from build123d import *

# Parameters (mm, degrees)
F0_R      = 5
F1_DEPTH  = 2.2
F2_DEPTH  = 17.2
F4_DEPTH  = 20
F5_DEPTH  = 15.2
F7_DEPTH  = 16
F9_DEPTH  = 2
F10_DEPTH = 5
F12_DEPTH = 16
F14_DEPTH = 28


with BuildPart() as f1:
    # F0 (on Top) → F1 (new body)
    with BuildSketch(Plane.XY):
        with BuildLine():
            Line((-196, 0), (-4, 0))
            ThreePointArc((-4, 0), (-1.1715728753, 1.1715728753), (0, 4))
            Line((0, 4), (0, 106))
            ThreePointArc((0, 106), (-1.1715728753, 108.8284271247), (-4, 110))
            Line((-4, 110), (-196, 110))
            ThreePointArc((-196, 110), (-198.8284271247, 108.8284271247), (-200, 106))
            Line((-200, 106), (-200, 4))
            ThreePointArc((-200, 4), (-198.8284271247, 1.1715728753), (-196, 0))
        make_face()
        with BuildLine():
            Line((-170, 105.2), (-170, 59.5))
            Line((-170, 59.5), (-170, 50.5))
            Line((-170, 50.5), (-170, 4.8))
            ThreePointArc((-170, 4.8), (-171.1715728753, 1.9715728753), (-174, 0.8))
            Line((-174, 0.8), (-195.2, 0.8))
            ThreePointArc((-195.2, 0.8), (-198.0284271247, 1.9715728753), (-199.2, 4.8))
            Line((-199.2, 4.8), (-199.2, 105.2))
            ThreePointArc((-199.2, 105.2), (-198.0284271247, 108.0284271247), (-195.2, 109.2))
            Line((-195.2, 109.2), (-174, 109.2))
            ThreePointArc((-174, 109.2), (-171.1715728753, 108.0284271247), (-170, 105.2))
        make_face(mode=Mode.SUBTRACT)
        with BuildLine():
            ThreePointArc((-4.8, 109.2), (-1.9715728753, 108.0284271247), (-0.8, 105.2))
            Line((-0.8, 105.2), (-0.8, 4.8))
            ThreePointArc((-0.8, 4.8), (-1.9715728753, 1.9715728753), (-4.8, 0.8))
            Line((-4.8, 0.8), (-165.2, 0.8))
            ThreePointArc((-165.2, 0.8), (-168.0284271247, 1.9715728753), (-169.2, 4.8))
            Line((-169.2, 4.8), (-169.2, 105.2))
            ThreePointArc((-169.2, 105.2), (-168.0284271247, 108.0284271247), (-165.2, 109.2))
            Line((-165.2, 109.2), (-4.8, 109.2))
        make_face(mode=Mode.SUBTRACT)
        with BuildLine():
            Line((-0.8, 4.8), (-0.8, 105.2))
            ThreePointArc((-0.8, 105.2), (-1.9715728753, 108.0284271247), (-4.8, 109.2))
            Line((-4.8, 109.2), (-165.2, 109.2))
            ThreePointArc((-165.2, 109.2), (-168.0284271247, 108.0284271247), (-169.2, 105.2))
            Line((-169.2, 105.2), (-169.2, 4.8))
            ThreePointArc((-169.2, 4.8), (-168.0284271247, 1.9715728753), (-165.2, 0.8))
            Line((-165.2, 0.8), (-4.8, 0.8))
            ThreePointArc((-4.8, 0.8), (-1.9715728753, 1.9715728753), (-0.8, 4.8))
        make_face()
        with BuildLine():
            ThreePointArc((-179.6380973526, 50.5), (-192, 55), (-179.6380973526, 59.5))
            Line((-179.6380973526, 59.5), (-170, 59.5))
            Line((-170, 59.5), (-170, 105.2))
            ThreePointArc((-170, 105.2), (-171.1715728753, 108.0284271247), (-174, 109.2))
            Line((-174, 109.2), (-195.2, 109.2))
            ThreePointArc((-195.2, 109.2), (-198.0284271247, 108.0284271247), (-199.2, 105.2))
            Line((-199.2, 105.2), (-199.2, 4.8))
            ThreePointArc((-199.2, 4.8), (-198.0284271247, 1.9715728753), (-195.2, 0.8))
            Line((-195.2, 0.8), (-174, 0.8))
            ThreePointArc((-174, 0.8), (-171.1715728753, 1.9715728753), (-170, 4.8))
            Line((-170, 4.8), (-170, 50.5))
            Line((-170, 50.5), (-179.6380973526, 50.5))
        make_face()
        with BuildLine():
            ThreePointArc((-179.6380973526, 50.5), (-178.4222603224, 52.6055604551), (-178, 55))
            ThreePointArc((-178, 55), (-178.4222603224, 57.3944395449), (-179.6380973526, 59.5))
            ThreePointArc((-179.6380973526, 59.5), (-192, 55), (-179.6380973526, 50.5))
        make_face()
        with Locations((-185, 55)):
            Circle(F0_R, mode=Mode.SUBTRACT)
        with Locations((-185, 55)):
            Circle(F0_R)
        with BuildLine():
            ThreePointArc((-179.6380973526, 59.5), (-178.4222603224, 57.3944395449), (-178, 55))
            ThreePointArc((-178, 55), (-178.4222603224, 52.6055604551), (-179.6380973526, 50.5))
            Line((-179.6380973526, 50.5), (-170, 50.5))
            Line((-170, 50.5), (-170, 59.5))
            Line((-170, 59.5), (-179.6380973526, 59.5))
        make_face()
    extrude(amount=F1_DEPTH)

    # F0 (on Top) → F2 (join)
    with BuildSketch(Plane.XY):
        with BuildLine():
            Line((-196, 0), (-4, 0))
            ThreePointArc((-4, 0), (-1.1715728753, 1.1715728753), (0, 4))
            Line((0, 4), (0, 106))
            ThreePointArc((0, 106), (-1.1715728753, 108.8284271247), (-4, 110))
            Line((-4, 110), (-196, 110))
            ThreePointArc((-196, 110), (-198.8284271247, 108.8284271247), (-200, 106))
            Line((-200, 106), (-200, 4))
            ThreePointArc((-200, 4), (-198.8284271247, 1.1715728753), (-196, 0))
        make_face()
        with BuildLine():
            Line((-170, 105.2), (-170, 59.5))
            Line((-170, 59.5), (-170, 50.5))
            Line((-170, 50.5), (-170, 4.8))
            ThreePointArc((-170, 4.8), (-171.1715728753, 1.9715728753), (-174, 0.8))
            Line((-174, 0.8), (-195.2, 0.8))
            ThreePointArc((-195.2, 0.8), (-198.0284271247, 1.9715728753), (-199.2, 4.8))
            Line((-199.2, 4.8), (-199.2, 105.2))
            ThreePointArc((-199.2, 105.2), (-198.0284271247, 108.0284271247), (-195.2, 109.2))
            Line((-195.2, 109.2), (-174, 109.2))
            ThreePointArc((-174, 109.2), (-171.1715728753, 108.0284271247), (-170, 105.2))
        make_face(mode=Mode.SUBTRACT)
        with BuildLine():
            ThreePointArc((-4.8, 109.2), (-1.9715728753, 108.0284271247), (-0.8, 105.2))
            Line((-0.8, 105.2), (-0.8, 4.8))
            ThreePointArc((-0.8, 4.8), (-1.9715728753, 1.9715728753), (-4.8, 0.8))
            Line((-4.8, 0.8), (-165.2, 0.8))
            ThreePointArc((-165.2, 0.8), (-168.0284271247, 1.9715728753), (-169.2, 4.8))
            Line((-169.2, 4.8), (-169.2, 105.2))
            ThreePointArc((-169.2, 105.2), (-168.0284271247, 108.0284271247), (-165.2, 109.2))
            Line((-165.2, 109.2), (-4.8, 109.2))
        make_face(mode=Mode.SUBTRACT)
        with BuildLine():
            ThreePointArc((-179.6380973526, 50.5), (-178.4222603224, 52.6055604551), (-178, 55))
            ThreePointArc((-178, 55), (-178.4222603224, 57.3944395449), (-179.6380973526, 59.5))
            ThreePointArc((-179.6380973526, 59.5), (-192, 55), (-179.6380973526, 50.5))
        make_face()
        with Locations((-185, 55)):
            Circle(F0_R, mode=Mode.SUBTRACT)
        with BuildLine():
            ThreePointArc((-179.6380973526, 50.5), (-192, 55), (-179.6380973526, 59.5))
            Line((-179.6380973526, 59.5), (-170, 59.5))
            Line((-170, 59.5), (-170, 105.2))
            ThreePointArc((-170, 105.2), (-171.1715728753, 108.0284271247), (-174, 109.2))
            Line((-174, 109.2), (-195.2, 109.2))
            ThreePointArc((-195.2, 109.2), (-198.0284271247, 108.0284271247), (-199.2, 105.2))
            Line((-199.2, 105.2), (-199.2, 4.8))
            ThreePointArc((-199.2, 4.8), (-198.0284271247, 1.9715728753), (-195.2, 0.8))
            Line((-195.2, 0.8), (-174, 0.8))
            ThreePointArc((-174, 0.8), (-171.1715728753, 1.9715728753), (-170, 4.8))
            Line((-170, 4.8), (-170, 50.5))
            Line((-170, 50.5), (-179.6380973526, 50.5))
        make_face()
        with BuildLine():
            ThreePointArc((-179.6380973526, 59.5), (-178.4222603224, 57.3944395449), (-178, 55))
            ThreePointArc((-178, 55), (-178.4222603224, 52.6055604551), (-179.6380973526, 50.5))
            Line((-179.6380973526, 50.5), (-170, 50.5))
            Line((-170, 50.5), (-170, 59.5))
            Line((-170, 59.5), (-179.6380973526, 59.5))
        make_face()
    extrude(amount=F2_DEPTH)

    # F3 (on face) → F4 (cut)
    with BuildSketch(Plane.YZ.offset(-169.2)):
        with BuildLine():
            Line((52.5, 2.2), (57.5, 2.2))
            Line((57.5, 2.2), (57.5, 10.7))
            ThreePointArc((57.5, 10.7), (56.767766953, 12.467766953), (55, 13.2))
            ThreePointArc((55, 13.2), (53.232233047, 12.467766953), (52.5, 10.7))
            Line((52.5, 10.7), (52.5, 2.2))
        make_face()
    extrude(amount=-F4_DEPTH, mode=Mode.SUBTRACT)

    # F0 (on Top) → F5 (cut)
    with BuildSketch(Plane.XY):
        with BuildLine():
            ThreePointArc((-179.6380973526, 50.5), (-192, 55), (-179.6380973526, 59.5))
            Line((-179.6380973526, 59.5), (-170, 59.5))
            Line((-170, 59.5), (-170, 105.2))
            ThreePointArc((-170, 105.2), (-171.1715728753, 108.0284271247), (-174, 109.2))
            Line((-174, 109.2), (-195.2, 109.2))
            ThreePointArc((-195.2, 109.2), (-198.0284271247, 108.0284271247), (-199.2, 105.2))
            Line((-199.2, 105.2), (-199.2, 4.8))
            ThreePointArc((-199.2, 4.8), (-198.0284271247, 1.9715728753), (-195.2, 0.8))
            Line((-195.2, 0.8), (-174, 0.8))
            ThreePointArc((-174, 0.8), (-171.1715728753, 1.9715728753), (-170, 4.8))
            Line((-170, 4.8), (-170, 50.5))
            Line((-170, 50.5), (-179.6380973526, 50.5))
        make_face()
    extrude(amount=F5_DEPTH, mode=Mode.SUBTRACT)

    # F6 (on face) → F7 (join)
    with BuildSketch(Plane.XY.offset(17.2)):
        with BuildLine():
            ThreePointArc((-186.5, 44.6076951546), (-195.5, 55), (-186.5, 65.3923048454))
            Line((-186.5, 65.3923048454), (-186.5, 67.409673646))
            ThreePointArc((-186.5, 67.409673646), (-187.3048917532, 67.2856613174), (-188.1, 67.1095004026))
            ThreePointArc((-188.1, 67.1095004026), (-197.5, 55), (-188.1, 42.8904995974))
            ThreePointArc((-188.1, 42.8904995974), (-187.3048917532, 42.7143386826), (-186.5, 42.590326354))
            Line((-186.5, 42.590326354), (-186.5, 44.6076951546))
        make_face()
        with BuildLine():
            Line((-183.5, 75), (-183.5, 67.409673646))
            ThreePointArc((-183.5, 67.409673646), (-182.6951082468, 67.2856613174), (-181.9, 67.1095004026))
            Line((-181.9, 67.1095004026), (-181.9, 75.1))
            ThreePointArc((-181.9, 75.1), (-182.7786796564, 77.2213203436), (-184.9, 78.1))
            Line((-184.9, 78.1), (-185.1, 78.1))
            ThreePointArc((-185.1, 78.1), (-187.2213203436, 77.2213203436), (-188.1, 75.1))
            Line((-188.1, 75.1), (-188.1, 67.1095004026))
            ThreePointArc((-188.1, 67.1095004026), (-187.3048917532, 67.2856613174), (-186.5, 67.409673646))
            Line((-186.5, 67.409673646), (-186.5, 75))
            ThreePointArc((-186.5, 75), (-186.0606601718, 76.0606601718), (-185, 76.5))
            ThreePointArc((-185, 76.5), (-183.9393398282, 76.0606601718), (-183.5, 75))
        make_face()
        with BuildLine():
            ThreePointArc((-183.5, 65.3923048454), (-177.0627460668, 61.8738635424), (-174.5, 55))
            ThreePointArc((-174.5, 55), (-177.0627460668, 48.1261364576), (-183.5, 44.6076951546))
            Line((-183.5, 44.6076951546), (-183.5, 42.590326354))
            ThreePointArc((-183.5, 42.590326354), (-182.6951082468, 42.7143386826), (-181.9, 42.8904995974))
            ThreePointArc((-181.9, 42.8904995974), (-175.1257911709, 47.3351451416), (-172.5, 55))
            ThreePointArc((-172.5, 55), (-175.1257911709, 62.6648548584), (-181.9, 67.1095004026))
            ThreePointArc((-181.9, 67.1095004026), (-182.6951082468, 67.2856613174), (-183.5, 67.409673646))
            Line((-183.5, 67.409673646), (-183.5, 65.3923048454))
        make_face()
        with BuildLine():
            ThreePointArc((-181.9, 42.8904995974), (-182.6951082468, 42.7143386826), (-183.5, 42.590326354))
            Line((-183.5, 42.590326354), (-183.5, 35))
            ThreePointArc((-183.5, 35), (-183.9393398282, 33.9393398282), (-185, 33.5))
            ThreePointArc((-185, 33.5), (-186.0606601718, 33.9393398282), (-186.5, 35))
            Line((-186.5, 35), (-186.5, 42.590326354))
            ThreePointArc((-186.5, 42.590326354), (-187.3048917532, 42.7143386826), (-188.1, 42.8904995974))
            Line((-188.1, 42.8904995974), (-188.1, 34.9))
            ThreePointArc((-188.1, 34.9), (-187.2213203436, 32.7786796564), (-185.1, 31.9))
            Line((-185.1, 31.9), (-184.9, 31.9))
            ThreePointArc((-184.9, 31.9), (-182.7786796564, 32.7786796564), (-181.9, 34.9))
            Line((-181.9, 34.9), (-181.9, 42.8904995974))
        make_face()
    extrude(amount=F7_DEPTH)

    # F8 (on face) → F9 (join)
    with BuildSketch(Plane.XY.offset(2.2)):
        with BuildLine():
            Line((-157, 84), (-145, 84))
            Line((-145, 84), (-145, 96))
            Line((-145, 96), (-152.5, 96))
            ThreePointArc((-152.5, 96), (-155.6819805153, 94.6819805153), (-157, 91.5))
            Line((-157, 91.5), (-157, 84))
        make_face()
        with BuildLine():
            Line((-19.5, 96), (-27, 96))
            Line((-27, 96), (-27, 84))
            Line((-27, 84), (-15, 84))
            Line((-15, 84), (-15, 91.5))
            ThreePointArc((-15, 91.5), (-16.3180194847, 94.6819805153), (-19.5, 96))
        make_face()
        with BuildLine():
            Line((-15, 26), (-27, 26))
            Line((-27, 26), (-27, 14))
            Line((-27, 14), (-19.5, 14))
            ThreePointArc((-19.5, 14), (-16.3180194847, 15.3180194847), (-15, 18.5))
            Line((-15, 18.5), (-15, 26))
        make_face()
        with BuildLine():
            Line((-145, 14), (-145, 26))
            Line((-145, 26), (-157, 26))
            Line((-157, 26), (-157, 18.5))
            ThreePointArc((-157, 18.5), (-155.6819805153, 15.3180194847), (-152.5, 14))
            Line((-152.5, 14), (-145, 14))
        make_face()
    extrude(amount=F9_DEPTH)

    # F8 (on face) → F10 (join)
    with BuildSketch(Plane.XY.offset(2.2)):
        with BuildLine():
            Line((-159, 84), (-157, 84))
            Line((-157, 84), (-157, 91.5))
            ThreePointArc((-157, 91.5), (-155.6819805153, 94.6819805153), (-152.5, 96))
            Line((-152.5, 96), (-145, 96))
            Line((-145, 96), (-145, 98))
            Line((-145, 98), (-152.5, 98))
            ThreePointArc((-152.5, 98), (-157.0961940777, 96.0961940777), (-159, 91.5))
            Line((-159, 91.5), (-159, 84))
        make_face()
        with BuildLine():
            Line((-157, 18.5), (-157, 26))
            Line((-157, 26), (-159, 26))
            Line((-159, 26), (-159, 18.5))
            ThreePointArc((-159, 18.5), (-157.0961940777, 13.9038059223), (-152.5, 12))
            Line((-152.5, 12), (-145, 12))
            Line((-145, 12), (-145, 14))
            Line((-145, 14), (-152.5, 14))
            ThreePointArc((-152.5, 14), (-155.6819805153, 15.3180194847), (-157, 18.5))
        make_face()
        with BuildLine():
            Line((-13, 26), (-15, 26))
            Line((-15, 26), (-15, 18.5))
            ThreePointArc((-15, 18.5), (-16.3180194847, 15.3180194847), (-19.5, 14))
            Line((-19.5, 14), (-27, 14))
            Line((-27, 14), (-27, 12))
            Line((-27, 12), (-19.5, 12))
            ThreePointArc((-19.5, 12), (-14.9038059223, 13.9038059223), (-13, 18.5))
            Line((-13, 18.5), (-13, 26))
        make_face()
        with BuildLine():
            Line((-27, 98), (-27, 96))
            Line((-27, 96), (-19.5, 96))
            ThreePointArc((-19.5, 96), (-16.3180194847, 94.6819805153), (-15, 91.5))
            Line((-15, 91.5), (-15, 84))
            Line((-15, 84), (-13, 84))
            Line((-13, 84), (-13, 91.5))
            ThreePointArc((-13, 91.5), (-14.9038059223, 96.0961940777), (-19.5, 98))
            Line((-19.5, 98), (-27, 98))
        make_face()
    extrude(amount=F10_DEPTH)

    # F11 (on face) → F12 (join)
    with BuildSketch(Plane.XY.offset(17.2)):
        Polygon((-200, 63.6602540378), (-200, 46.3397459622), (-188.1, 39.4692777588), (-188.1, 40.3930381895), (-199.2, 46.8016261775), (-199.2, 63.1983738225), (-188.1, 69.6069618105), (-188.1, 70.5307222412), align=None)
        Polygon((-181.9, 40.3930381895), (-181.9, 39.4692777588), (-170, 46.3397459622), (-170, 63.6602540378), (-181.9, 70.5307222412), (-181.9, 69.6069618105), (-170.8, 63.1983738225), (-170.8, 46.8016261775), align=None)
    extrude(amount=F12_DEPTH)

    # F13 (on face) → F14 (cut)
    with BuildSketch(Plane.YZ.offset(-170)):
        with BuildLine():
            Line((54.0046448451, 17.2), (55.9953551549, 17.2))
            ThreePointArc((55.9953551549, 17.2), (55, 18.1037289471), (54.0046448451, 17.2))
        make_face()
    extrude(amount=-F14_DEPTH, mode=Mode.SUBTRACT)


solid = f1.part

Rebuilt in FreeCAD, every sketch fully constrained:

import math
import FreeCAD as App
import Part
import Sketcher
Q = App.Units.Quantity

doc = App.newDocument("Part")
params = doc.addObject("Spreadsheet::Sheet", "Params")
for row, (alias, value) in enumerate([
    ("sketch1_radius", "4 mm"),
    ("sketch1_width", "192 mm"),
    ("sketch1_height", "102 mm"),
    ("pad1_length", "2.2 mm"),
    ("sketch2_diameter", "10 mm"),
    ("sketch2_radius", "4 mm"),
    ("sketch2_width", "192 mm"),
    ("sketch2_height", "102 mm"),
    ("sketch2_width2", "160.4 mm"),
    ("pad2_length", "17.2 mm"),
    ("sketch3_radius", "2.5 mm"),
    ("sketch3_height", "8.5 mm"),
    ("pocket1_length", "20 mm"),
    ("sketch4_radius", "7 mm"),
    ("sketch4_radius2", "4 mm"),
    ("sketch4_width", "21.2 mm"),
    ("sketch4_height", "45.7 mm"),
    ("sketch4_height2", "100.4 mm"),
    ("pocket2_length", "15.2 mm"),
    ("sketch5_radius", "3 mm"),
    ("sketch5_radius2", "12.5 mm"),
    ("sketch5_radius3", "10.5 mm"),
    ("sketch5_radius4", "1.5 mm"),
    ("sketch5_width", "0.2 mm"),
    ("pad3_length", "16 mm"),
    ("sketch6_radius", "4.5 mm"),
    ("sketch6_width", "12 mm"),
    ("pad4_length", "2 mm"),
    ("sketch7_radius", "4.5 mm"),
    ("sketch7_radius2", "6.5 mm"),
    ("sketch7_width", "7.5 mm"),
    ("pad5_length", "5 mm"),
    ("pad6_length", "16 mm"),
    ("sketch9_radius", "1 mm"),
    ("pocket3_length", "28 mm"),
], start=1):
    params.set(f"A{row}", alias)
    params.set(f"B{row}", "=" + value)
    params.setAlias(f"B{row}", alias)

body = doc.addObject("PartDesign::Body", "Body")

# Sketch on XY plane
sketch1 = doc.addObject("Sketcher::SketchObject", "Sketch")
body.addObject(sketch1)
sketch1.AttachmentSupport = (doc.XY_Plane, [""])
sketch1.MapMode = "FlatFace"
sketch1.addGeometry([
    Part.LineSegment(App.Vector(-196, 0, 0), App.Vector(-4, 0, 0)),  # 0
    Part.ArcOfCircle(Part.Circle(App.Vector(-4, 4, 0), App.Vector(0, 0, 1), 4), math.radians(-90), math.radians(0)),  # 1
    Part.LineSegment(App.Vector(0, 4, 0), App.Vector(0, 106, 0)),  # 2
    Part.ArcOfCircle(Part.Circle(App.Vector(-4, 106, 0), App.Vector(0, 0, 1), 4), math.radians(0), math.radians(90)),  # 3
    Part.LineSegment(App.Vector(-4, 110, 0), App.Vector(-196, 110, 0)),  # 4
    Part.ArcOfCircle(Part.Circle(App.Vector(-196, 106, 0), App.Vector(0, 0, 1), 4), math.radians(90), math.radians(180)),  # 5
    Part.LineSegment(App.Vector(-200, 106, 0), App.Vector(-200, 4, 0)),  # 6
    Part.ArcOfCircle(Part.Circle(App.Vector(-196, 4, 0), App.Vector(0, 0, 1), 4), math.radians(180), math.radians(270)),  # 7
], False)
sketch1.addConstraint([
    Sketcher.Constraint("Tangent", 0, 2, 1, 1),
    Sketcher.Constraint("Tangent", 1, 2, 2, 1),
    Sketcher.Constraint("Tangent", 2, 2, 3, 1),
    Sketcher.Constraint("Tangent", 3, 2, 4, 1),
    Sketcher.Constraint("Tangent", 4, 2, 5, 1),
    Sketcher.Constraint("Tangent", 5, 2, 6, 1),
    Sketcher.Constraint("Tangent", 6, 2, 7, 1),
    Sketcher.Constraint("Tangent", 7, 2, 0, 1),
    Sketcher.Constraint("Horizontal", 0),
    Sketcher.Constraint("Vertical", 2),
    Sketcher.Constraint("Horizontal", 4),
    Sketcher.Constraint("Vertical", 6),
    Sketcher.Constraint("Equal", 1, 3),
    Sketcher.Constraint("Equal", 3, 5),
    Sketcher.Constraint("Equal", 5, 7),
    Sketcher.Constraint("PointOnObject", 0, 2, -1),
    Sketcher.Constraint("PointOnObject", 1, 2, -2),
    Sketcher.Constraint("Radius", 1, 4.0),
    Sketcher.Constraint("DistanceX", 0, 1, 0, 2, 192.0),
    Sketcher.Constraint("DistanceY", 2, 1, 2, 2, 102.0),
])
sketch1.setExpression("Constraints[17]", "Params.sketch1_radius")
sketch1.setExpression("Constraints[18]", "Params.sketch1_width")
sketch1.setExpression("Constraints[19]", "Params.sketch1_height")
pad1 = doc.addObject("PartDesign::Pad", "Pad")
body.addObject(pad1)
pad1.Profile = sketch1
pad1.setExpression("Length", "Params.pad1_length")

# Sketch on XY plane
sketch2 = doc.addObject("Sketcher::SketchObject", "Sketch001")
body.addObject(sketch2)
sketch2.AttachmentSupport = (doc.XY_Plane, [""])
sketch2.MapMode = "FlatFace"
sketch2.addGeometry([
    Part.LineSegment(App.Vector(-196, 0, 0), App.Vector(-4, 0, 0)),  # 0
    Part.ArcOfCircle(Part.Circle(App.Vector(-4, 4, 0), App.Vector(0, 0, 1), 4), math.radians(-90), math.radians(0)),  # 1
    Part.LineSegment(App.Vector(0, 4, 0), App.Vector(0, 106, 0)),  # 2
    Part.ArcOfCircle(Part.Circle(App.Vector(-4, 106, 0), App.Vector(0, 0, 1), 4), math.radians(0), math.radians(90)),  # 3
    Part.LineSegment(App.Vector(-4, 110, 0), App.Vector(-196, 110, 0)),  # 4
    Part.ArcOfCircle(Part.Circle(App.Vector(-196, 106, 0), App.Vector(0, 0, 1), 4), math.radians(90), math.radians(180)),  # 5
    Part.LineSegment(App.Vector(-200, 106, 0), App.Vector(-200, 4, 0)),  # 6
    Part.ArcOfCircle(Part.Circle(App.Vector(-196, 4, 0), App.Vector(0, 0, 1), 4), math.radians(180), math.radians(270)),  # 7
    Part.LineSegment(App.Vector(-165.2, 109.2, 0), App.Vector(-4.8, 109.2, 0)),  # 8
    Part.ArcOfCircle(Part.Circle(App.Vector(-4.8, 105.2, 0), App.Vector(0, 0, 1), 4), math.radians(0), math.radians(90)),  # 9
    Part.LineSegment(App.Vector(-0.8, 105.2, 0), App.Vector(-0.8, 4.8, 0)),  # 10
    Part.ArcOfCircle(Part.Circle(App.Vector(-4.8, 4.8, 0), App.Vector(0, 0, 1), 4), math.radians(-90), math.radians(0)),  # 11
    Part.LineSegment(App.Vector(-4.8, 0.8, 0), App.Vector(-165.2, 0.8, 0)),  # 12
    Part.ArcOfCircle(Part.Circle(App.Vector(-165.2, 4.8, 0), App.Vector(0, 0, 1), 4), math.radians(180), math.radians(270)),  # 13
    Part.LineSegment(App.Vector(-169.2, 4.8, 0), App.Vector(-169.2, 105.2, 0)),  # 14
    Part.ArcOfCircle(Part.Circle(App.Vector(-165.2, 105.2, 0), App.Vector(0, 0, 1), 4), math.radians(90), math.radians(180)),  # 15
    Part.Circle(App.Vector(-185, 55, 0), App.Vector(0, 0, 1), 5),  # 16
], False)
sketch2.addConstraint([
    Sketcher.Constraint("Tangent", 0, 2, 1, 1),
    Sketcher.Constraint("Tangent", 1, 2, 2, 1),
    Sketcher.Constraint("Tangent", 2, 2, 3, 1),
    Sketcher.Constraint("Tangent", 3, 2, 4, 1),
    Sketcher.Constraint("Tangent", 4, 2, 5, 1),
    Sketcher.Constraint("Tangent", 5, 2, 6, 1),
    Sketcher.Constraint("Tangent", 6, 2, 7, 1),
    Sketcher.Constraint("Tangent", 7, 2, 0, 1),
    Sketcher.Constraint("Tangent", 8, 2, 9, 2),
    Sketcher.Constraint("Tangent", 9, 1, 10, 1),
    Sketcher.Constraint("Tangent", 10, 2, 11, 2),
    Sketcher.Constraint("Tangent", 11, 1, 12, 1),
    Sketcher.Constraint("Tangent", 12, 2, 13, 2),
    Sketcher.Constraint("Tangent", 13, 1, 14, 1),
    Sketcher.Constraint("Tangent", 14, 2, 15, 2),
    Sketcher.Constraint("Tangent", 15, 1, 8, 1),
    Sketcher.Constraint("Horizontal", 0),
    Sketcher.Constraint("Vertical", 2),
    Sketcher.Constraint("Horizontal", 4),
    Sketcher.Constraint("Vertical", 6),
    Sketcher.Constraint("Horizontal", 8),
    Sketcher.Constraint("Vertical", 10),
    Sketcher.Constraint("Horizontal", 12),
    Sketcher.Constraint("Vertical", 14),
    Sketcher.Constraint("Equal", 1, 3),
    Sketcher.Constraint("Equal", 3, 5),
    Sketcher.Constraint("Equal", 5, 7),
    Sketcher.Constraint("Equal", 7, 9),
    Sketcher.Constraint("Equal", 9, 11),
    Sketcher.Constraint("Equal", 11, 13),
    Sketcher.Constraint("Equal", 13, 15),
    Sketcher.Constraint("PointOnObject", 0, 2, -1),
    Sketcher.Constraint("PointOnObject", 1, 2, -2),
    Sketcher.Constraint("Diameter", 16, 10.0),
    Sketcher.Constraint("Radius", 1, 4.0),
    Sketcher.Constraint("DistanceX", 0, 1, 0, 2, 192.0),
    Sketcher.Constraint("DistanceY", 2, 1, 2, 2, 102.0),
    Sketcher.Constraint("DistanceX", 8, 1, 8, 2, 160.4),
    Sketcher.Constraint("DistanceY", 10, 2, 10, 1, 100.4),
    Sketcher.Constraint("DistanceX", 16, 3, -1, 1, 185.0),
    Sketcher.Constraint("DistanceY", -1, 1, 16, 3, 55.0),
    Sketcher.Constraint("DistanceX", 9, 3, -1, 1, 4.8),
    Sketcher.Constraint("DistanceY", -1, 1, 9, 3, 105.2),
])
sketch2.setExpression("Constraints[33]", "Params.sketch2_diameter")
sketch2.setExpression("Constraints[34]", "Params.sketch2_radius")
sketch2.setExpression("Constraints[35]", "Params.sketch2_width")
sketch2.setExpression("Constraints[36]", "Params.sketch2_height")
sketch2.setExpression("Constraints[37]", "Params.sketch2_width2")
pad2 = doc.addObject("PartDesign::Pad", "Pad001")
body.addObject(pad2)
pad2.Profile = sketch2
pad2.setExpression("Length", "Params.pad2_length")

# Sketch on YZ plane
sketch3 = doc.addObject("Sketcher::SketchObject", "Sketch002")
body.addObject(sketch3)
sketch3.AttachmentSupport = (doc.YZ_Plane, [""])
sketch3.MapMode = "FlatFace"
sketch3.AttachmentOffset = App.Placement(App.Vector(0, 0, -169.2), App.Rotation())
sketch3.addGeometry([
    Part.LineSegment(App.Vector(52.5, 2.2, 0), App.Vector(57.5, 2.2, 0)),  # 0
    Part.LineSegment(App.Vector(57.5, 2.2, 0), App.Vector(57.5, 10.7, 0)),  # 1
    Part.ArcOfCircle(Part.Circle(App.Vector(55, 10.7, 0), App.Vector(0, 0, 1), 2.5), math.radians(0), math.radians(90)),  # 2
    Part.ArcOfCircle(Part.Circle(App.Vector(55, 10.7, 0), App.Vector(0, 0, 1), 2.5), math.radians(90), math.radians(180)),  # 3
    Part.LineSegment(App.Vector(52.5, 10.7, 0), App.Vector(52.5, 2.2, 0)),  # 4
], False)
sketch3.addConstraint([
    Sketcher.Constraint("Coincident", 0, 2, 1, 1),
    Sketcher.Constraint("Tangent", 1, 2, 2, 1),
    Sketcher.Constraint("Tangent", 2, 2, 3, 1),
    Sketcher.Constraint("Tangent", 3, 2, 4, 1),
    Sketcher.Constraint("Coincident", 4, 2, 0, 1),
    Sketcher.Constraint("Horizontal", 0),
    Sketcher.Constraint("Vertical", 1),
    Sketcher.Constraint("Vertical", 4),
    Sketcher.Constraint("Equal", 2, 3),
    Sketcher.Constraint("Vertical", 3, 3, 2, 2),
    Sketcher.Constraint("Radius", 2, 2.5),
    Sketcher.Constraint("DistanceY", 1, 1, 1, 2, 8.5),
    Sketcher.Constraint("DistanceX", -1, 1, 2, 3, 55.0),
    Sketcher.Constraint("DistanceY", -1, 1, 2, 3, 10.7),
])
sketch3.setExpression("Constraints[10]", "Params.sketch3_radius")
sketch3.setExpression("Constraints[11]", "Params.sketch3_height")
pocket1 = doc.addObject("PartDesign::Pocket", "Pocket")
body.addObject(pocket1)
pocket1.Profile = sketch3
pocket1.setExpression("Length", "Params.pocket1_length")

# Sketch on XY plane
sketch4 = doc.addObject("Sketcher::SketchObject", "Sketch003")
body.addObject(sketch4)
sketch4.AttachmentSupport = (doc.XY_Plane, [""])
sketch4.MapMode = "FlatFace"
sketch4.addGeometry([
    Part.ArcOfCircle(Part.Circle(App.Vector(-185, 55, 0), App.Vector(0, 0, 1), 7), math.radians(40.005201), math.radians(319.994799)),  # 0
    Part.LineSegment(App.Vector(-179.638097, 59.5, 0), App.Vector(-170, 59.5, 0)),  # 1
    Part.LineSegment(App.Vector(-170, 59.5, 0), App.Vector(-170, 105.2, 0)),  # 2
    Part.ArcOfCircle(Part.Circle(App.Vector(-174, 105.2, 0), App.Vector(0, 0, 1), 4), math.radians(0), math.radians(90)),  # 3
    Part.LineSegment(App.Vector(-174, 109.2, 0), App.Vector(-195.2, 109.2, 0)),  # 4
    Part.ArcOfCircle(Part.Circle(App.Vector(-195.2, 105.2, 0), App.Vector(0, 0, 1), 4), math.radians(90), math.radians(180)),  # 5
    Part.LineSegment(App.Vector(-199.2, 105.2, 0), App.Vector(-199.2, 4.8, 0)),  # 6
    Part.ArcOfCircle(Part.Circle(App.Vector(-195.2, 4.8, 0), App.Vector(0, 0, 1), 4), math.radians(180), math.radians(270)),  # 7
    Part.LineSegment(App.Vector(-195.2, 0.8, 0), App.Vector(-174, 0.8, 0)),  # 8
    Part.ArcOfCircle(Part.Circle(App.Vector(-174, 4.8, 0), App.Vector(0, 0, 1), 4), math.radians(-90), math.radians(0)),  # 9
    Part.LineSegment(App.Vector(-170, 4.8, 0), App.Vector(-170, 50.5, 0)),  # 10
    Part.LineSegment(App.Vector(-170, 50.5, 0), App.Vector(-179.638097, 50.5, 0)),  # 11
], False)
sketch4.addConstraint([
    Sketcher.Constraint("Coincident", 0, 1, 1, 1),
    Sketcher.Constraint("Coincident", 1, 2, 2, 1),
    Sketcher.Constraint("Tangent", 2, 2, 3, 1),
    Sketcher.Constraint("Tangent", 3, 2, 4, 1),
    Sketcher.Constraint("Tangent", 4, 2, 5, 1),
    Sketcher.Constraint("Tangent", 5, 2, 6, 1),
    Sketcher.Constraint("Tangent", 6, 2, 7, 1),
    Sketcher.Constraint("Tangent", 7, 2, 8, 1),
    Sketcher.Constraint("Tangent", 8, 2, 9, 1),
    Sketcher.Constraint("Tangent", 9, 2, 10, 1),
    Sketcher.Constraint("Coincident", 10, 2, 11, 1),
    Sketcher.Constraint("Coincident", 11, 2, 0, 2),
    Sketcher.Constraint("Horizontal", 1),
    Sketcher.Constraint("Vertical", 2),
    Sketcher.Constraint("Horizontal", 4),
    Sketcher.Constraint("Vertical", 6),
    Sketcher.Constraint("Horizontal", 8),
    Sketcher.Constraint("Vertical", 10),
    Sketcher.Constraint("Horizontal", 11),
    Sketcher.Constraint("Equal", 3, 5),
    Sketcher.Constraint("Equal", 5, 7),
    Sketcher.Constraint("Equal", 7, 9),
    Sketcher.Constraint("Vertical", 3, 3, 9, 3),
    Sketcher.Constraint("Vertical", 0, 1, 11, 2),
    Sketcher.Constraint("Equal", 2, 10),
    Sketcher.Constraint("Radius", 0, 7.0),
    Sketcher.Constraint("Radius", 3, 4.0),
    Sketcher.Constraint("DistanceX", 4, 2, 4, 1, 21.2),
    Sketcher.Constraint("DistanceY", 2, 1, 2, 2, 45.7),
    Sketcher.Constraint("DistanceY", 6, 2, 6, 1, 100.4),
    Sketcher.Constraint("DistanceX", 0, 3, -1, 1, 185.0),
    Sketcher.Constraint("DistanceY", -1, 1, 0, 3, 55.0),
    Sketcher.Constraint("DistanceX", 3, 3, -1, 1, 174.0),
])
sketch4.setExpression("Constraints[25]", "Params.sketch4_radius")
sketch4.setExpression("Constraints[26]", "Params.sketch4_radius2")
sketch4.setExpression("Constraints[27]", "Params.sketch4_width")
sketch4.setExpression("Constraints[28]", "Params.sketch4_height")
sketch4.setExpression("Constraints[29]", "Params.sketch4_height2")
pocket2 = doc.addObject("PartDesign::Pocket", "Pocket001")
body.addObject(pocket2)
pocket2.Profile = sketch4
pocket2.setExpression("Length", "Params.pocket2_length")
pocket2.Reversed = True

# Sketch on XY plane
sketch5 = doc.addObject("Sketcher::SketchObject", "Sketch004")
body.addObject(sketch5)
sketch5.AttachmentSupport = (doc.XY_Plane, [""])
sketch5.MapMode = "FlatFace"
sketch5.AttachmentOffset = App.Placement(App.Vector(0, 0, 17.2), App.Rotation())
sketch5.addGeometry([
    Part.ArcOfCircle(Part.Circle(App.Vector(-185, 55, 0), App.Vector(0, 0, 1), 12.5), math.radians(-75.640806), math.radians(0)),  # 0
    Part.ArcOfCircle(Part.Circle(App.Vector(-185, 55, 0), App.Vector(0, 0, 1), 12.5), math.radians(0), math.radians(75.640806)),  # 1
    Part.LineSegment(App.Vector(-181.9, 67.1095, 0), App.Vector(-181.9, 75.1, 0)),  # 2
    Part.ArcOfCircle(Part.Circle(App.Vector(-184.9, 75.1, 0), App.Vector(0, 0, 1), 3), math.radians(0), math.radians(90)),  # 3
    Part.LineSegment(App.Vector(-184.9, 78.1, 0), App.Vector(-185.1, 78.1, 0)),  # 4
    Part.ArcOfCircle(Part.Circle(App.Vector(-185.1, 75.1, 0), App.Vector(0, 0, 1), 3), math.radians(90), math.radians(180)),  # 5
    Part.LineSegment(App.Vector(-188.1, 75.1, 0), App.Vector(-188.1, 67.1095, 0)),  # 6
    Part.ArcOfCircle(Part.Circle(App.Vector(-185, 55, 0), App.Vector(0, 0, 1), 12.5), math.radians(104.359194), math.radians(255.640806)),  # 7
    Part.LineSegment(App.Vector(-188.1, 42.8905, 0), App.Vector(-188.1, 34.9, 0)),  # 8
    Part.ArcOfCircle(Part.Circle(App.Vector(-185.1, 34.9, 0), App.Vector(0, 0, 1), 3), math.radians(180), math.radians(270)),  # 9
    Part.LineSegment(App.Vector(-185.1, 31.9, 0), App.Vector(-184.9, 31.9, 0)),  # 10
    Part.ArcOfCircle(Part.Circle(App.Vector(-184.9, 34.9, 0), App.Vector(0, 0, 1), 3), math.radians(-90), math.radians(0)),  # 11
    Part.LineSegment(App.Vector(-181.9, 34.9, 0), App.Vector(-181.9, 42.8905, 0)),  # 12
    Part.ArcOfCircle(Part.Circle(App.Vector(-185, 55, 0), App.Vector(0, 0, 1), 10.5), math.radians(98.213211), math.radians(261.786789)),  # 13
    Part.LineSegment(App.Vector(-186.5, 65.392305, 0), App.Vector(-186.5, 75, 0)),  # 14
    Part.ArcOfCircle(Part.Circle(App.Vector(-185, 75, 0), App.Vector(0, 0, 1), 1.5), math.radians(90), math.radians(180)),  # 15
    Part.ArcOfCircle(Part.Circle(App.Vector(-185, 75, 0), App.Vector(0, 0, 1), 1.5), math.radians(0), math.radians(90)),  # 16
    Part.LineSegment(App.Vector(-183.5, 75, 0), App.Vector(-183.5, 65.392305, 0)),  # 17
    Part.ArcOfCircle(Part.Circle(App.Vector(-185, 55, 0), App.Vector(0, 0, 1), 10.5), math.radians(0), math.radians(81.786789)),  # 18
    Part.ArcOfCircle(Part.Circle(App.Vector(-185, 55, 0), App.Vector(0, 0, 1), 10.5), math.radians(-81.786789), math.radians(0)),  # 19
    Part.LineSegment(App.Vector(-183.5, 44.607695, 0), App.Vector(-183.5, 35, 0)),  # 20
    Part.ArcOfCircle(Part.Circle(App.Vector(-185, 35, 0), App.Vector(0, 0, 1), 1.5), math.radians(-90), math.radians(0)),  # 21
    Part.ArcOfCircle(Part.Circle(App.Vector(-185, 35, 0), App.Vector(0, 0, 1), 1.5), math.radians(180), math.radians(270)),  # 22
    Part.LineSegment(App.Vector(-186.5, 35, 0), App.Vector(-186.5, 44.607695, 0)),  # 23
], False)
sketch5.addConstraint([
    Sketcher.Constraint("Tangent", 0, 2, 1, 1),
    Sketcher.Constraint("Coincident", 1, 2, 2, 1),
    Sketcher.Constraint("Tangent", 2, 2, 3, 1),
    Sketcher.Constraint("Tangent", 3, 2, 4, 1),
    Sketcher.Constraint("Tangent", 4, 2, 5, 1),
    Sketcher.Constraint("Tangent", 5, 2, 6, 1),
    Sketcher.Constraint("Coincident", 6, 2, 7, 1),
    Sketcher.Constraint("Coincident", 7, 2, 8, 1),
    Sketcher.Constraint("Tangent", 8, 2, 9, 1),
    Sketcher.Constraint("Tangent", 9, 2, 10, 1),
    Sketcher.Constraint("Tangent", 10, 2, 11, 1),
    Sketcher.Constraint("Tangent", 11, 2, 12, 1),
    Sketcher.Constraint("Coincident", 12, 2, 0, 1),
    Sketcher.Constraint("Coincident", 13, 1, 14, 1),
    Sketcher.Constraint("Tangent", 14, 2, 15, 2),
    Sketcher.Constraint("Tangent", 15, 1, 16, 2),
    Sketcher.Constraint("Tangent", 16, 1, 17, 1),
    Sketcher.Constraint("Coincident", 17, 2, 18, 2),
    Sketcher.Constraint("Tangent", 18, 1, 19, 2),
    Sketcher.Constraint("Coincident", 19, 1, 20, 1),
    Sketcher.Constraint("Tangent", 20, 2, 21, 2),
    Sketcher.Constraint("Tangent", 21, 1, 22, 2),
    Sketcher.Constraint("Tangent", 22, 1, 23, 1),
    Sketcher.Constraint("Coincident", 23, 2, 13, 2),
    Sketcher.Constraint("Vertical", 2),
    Sketcher.Constraint("Horizontal", 4),
    Sketcher.Constraint("Vertical", 6),
    Sketcher.Constraint("Vertical", 8),
    Sketcher.Constraint("Horizontal", 10),
    Sketcher.Constraint("Vertical", 12),
    Sketcher.Constraint("Vertical", 14),
    Sketcher.Constraint("Vertical", 17),
    Sketcher.Constraint("Vertical", 20),
    Sketcher.Constraint("Vertical", 23),
    Sketcher.Constraint("Coincident", 7, 3, 0, 3),
    Sketcher.Constraint("Coincident", 13, 3, 0, 3),
    Sketcher.Constraint("Coincident", 18, 3, 0, 3),
    Sketcher.Constraint("Equal", 0, 1),
    Sketcher.Constraint("Equal", 3, 5),
    Sketcher.Constraint("Equal", 1, 7),
    Sketcher.Constraint("Equal", 5, 9),
    Sketcher.Constraint("Equal", 9, 11),
    Sketcher.Constraint("Equal", 15, 16),
    Sketcher.Constraint("Equal", 13, 18),
    Sketcher.Constraint("Equal", 18, 19),
    Sketcher.Constraint("Equal", 16, 21),
    Sketcher.Constraint("Equal", 21, 22),
    Sketcher.Constraint("Horizontal", 19, 3, 0, 2),
    Sketcher.Constraint("Horizontal", 1, 2, 6, 2),
    Sketcher.Constraint("Horizontal", 7, 2, 12, 2),
    Sketcher.Constraint("Horizontal", 13, 1, 17, 2),
    Sketcher.Constraint("Horizontal", 0, 2, 18, 1),
    Sketcher.Constraint("Horizontal", 19, 1, 23, 2),
    Sketcher.Constraint("Vertical", 5, 3, 9, 3),
    Sketcher.Constraint("Vertical", 22, 3, 15, 1),
    Sketcher.Constraint("Vertical", 15, 1, 21, 1),
    Sketcher.Constraint("Equal", 6, 8),
    Sketcher.Constraint("Equal", 17, 20),
    Sketcher.Constraint("Radius", 3, 3.0),
    Sketcher.Constraint("Radius", 0, 12.5),
    Sketcher.Constraint("Radius", 13, 10.5),
    Sketcher.Constraint("Radius", 15, 1.5),
    Sketcher.Constraint("DistanceX", 4, 2, 4, 1, 0.2),
    Sketcher.Constraint("DistanceX", 0, 3, -1, 1, 185.0),
    Sketcher.Constraint("DistanceY", -1, 1, 0, 3, 55.0),
    Sketcher.Constraint("DistanceY", -1, 1, 15, 3, 75.0),
    Sketcher.Constraint("DistanceY", -1, 1, 3, 3, 75.1),
])
sketch5.setExpression("Constraints[58]", "Params.sketch5_radius")
sketch5.setExpression("Constraints[59]", "Params.sketch5_radius2")
sketch5.setExpression("Constraints[60]", "Params.sketch5_radius3")
sketch5.setExpression("Constraints[61]", "Params.sketch5_radius4")
sketch5.setExpression("Constraints[62]", "Params.sketch5_width")
pad3 = doc.addObject("PartDesign::Pad", "Pad002")
body.addObject(pad3)
pad3.Profile = sketch5
pad3.setExpression("Length", "Params.pad3_length")

# Sketch on XY plane
sketch6 = doc.addObject("Sketcher::SketchObject", "Sketch005")
body.addObject(sketch6)
sketch6.AttachmentSupport = (doc.XY_Plane, [""])
sketch6.MapMode = "FlatFace"
sketch6.AttachmentOffset = App.Placement(App.Vector(0, 0, 2.2), App.Rotation())
sketch6.addGeometry([
    Part.LineSegment(App.Vector(-157, 84, 0), App.Vector(-145, 84, 0)),  # 0
    Part.LineSegment(App.Vector(-145, 84, 0), App.Vector(-145, 96, 0)),  # 1
    Part.LineSegment(App.Vector(-145, 96, 0), App.Vector(-152.5, 96, 0)),  # 2
    Part.ArcOfCircle(Part.Circle(App.Vector(-152.5, 91.5, 0), App.Vector(0, 0, 1), 4.5), math.radians(90), math.radians(180)),  # 3
    Part.LineSegment(App.Vector(-157, 91.5, 0), App.Vector(-157, 84, 0)),  # 4
    Part.LineSegment(App.Vector(-19.5, 96, 0), App.Vector(-27, 96, 0)),  # 5
    Part.LineSegment(App.Vector(-27, 96, 0), App.Vector(-27, 84, 0)),  # 6
    Part.LineSegment(App.Vector(-27, 84, 0), App.Vector(-15, 84, 0)),  # 7
    Part.LineSegment(App.Vector(-15, 84, 0), App.Vector(-15, 91.5, 0)),  # 8
    Part.ArcOfCircle(Part.Circle(App.Vector(-19.5, 91.5, 0), App.Vector(0, 0, 1), 4.5), math.radians(0), math.radians(90)),  # 9
    Part.LineSegment(App.Vector(-15, 26, 0), App.Vector(-27, 26, 0)),  # 10
    Part.LineSegment(App.Vector(-27, 26, 0), App.Vector(-27, 14, 0)),  # 11
    Part.LineSegment(App.Vector(-27, 14, 0), App.Vector(-19.5, 14, 0)),  # 12
    Part.ArcOfCircle(Part.Circle(App.Vector(-19.5, 18.5, 0), App.Vector(0, 0, 1), 4.5), math.radians(-90), math.radians(0)),  # 13
    Part.LineSegment(App.Vector(-15, 18.5, 0), App.Vector(-15, 26, 0)),  # 14
    Part.LineSegment(App.Vector(-145, 14, 0), App.Vector(-145, 26, 0)),  # 15
    Part.LineSegment(App.Vector(-145, 26, 0), App.Vector(-157, 26, 0)),  # 16
    Part.LineSegment(App.Vector(-157, 26, 0), App.Vector(-157, 18.5, 0)),  # 17
    Part.ArcOfCircle(Part.Circle(App.Vector(-152.5, 18.5, 0), App.Vector(0, 0, 1), 4.5), math.radians(180), math.radians(270)),  # 18
    Part.LineSegment(App.Vector(-152.5, 14, 0), App.Vector(-145, 14, 0)),  # 19
], False)
sketch6.addConstraint([
    Sketcher.Constraint("Coincident", 0, 2, 1, 1),
    Sketcher.Constraint("Coincident", 1, 2, 2, 1),
    Sketcher.Constraint("Tangent", 2, 2, 3, 1),
    Sketcher.Constraint("Tangent", 3, 2, 4, 1),
    Sketcher.Constraint("Coincident", 4, 2, 0, 1),
    Sketcher.Constraint("Coincident", 5, 2, 6, 1),
    Sketcher.Constraint("Coincident", 6, 2, 7, 1),
    Sketcher.Constraint("Coincident", 7, 2, 8, 1),
    Sketcher.Constraint("Tangent", 8, 2, 9, 1),
    Sketcher.Constraint("Tangent", 9, 2, 5, 1),
    Sketcher.Constraint("Coincident", 10, 2, 11, 1),
    Sketcher.Constraint("Coincident", 11, 2, 12, 1),
    Sketcher.Constraint("Tangent", 12, 2, 13, 1),
    Sketcher.Constraint("Tangent", 13, 2, 14, 1),
    Sketcher.Constraint("Coincident", 14, 2, 10, 1),
    Sketcher.Constraint("Coincident", 15, 2, 16, 1),
    Sketcher.Constraint("Coincident", 16, 2, 17, 1),
    Sketcher.Constraint("Tangent", 17, 2, 18, 1),
    Sketcher.Constraint("Tangent", 18, 2, 19, 1),
    Sketcher.Constraint("Coincident", 19, 2, 15, 1),
    Sketcher.Constraint("Horizontal", 0),
    Sketcher.Constraint("Vertical", 1),
    Sketcher.Constraint("Horizontal", 2),
    Sketcher.Constraint("Vertical", 4),
    Sketcher.Constraint("Horizontal", 5),
    Sketcher.Constraint("Vertical", 6),
    Sketcher.Constraint("Horizontal", 7),
    Sketcher.Constraint("Vertical", 8),
    Sketcher.Constraint("Horizontal", 10),
    Sketcher.Constraint("Vertical", 11),
    Sketcher.Constraint("Horizontal", 12),
    Sketcher.Constraint("Vertical", 14),
    Sketcher.Constraint("Vertical", 15),
    Sketcher.Constraint("Horizontal", 16),
    Sketcher.Constraint("Vertical", 17),
    Sketcher.Constraint("Horizontal", 19),
    Sketcher.Constraint("Equal", 3, 9),
    Sketcher.Constraint("Equal", 9, 13),
    Sketcher.Constraint("Equal", 13, 18),
    Sketcher.Constraint("Horizontal", 3, 3, 9, 3),
    Sketcher.Constraint("Horizontal", 13, 3, 18, 3),
    Sketcher.Constraint("Horizontal", 4, 2, 6, 2),
    Sketcher.Constraint("Horizontal", 14, 2, 15, 2),
    Sketcher.Constraint("Vertical", 9, 3, 13, 3),
    Sketcher.Constraint("Vertical", 3, 3, 18, 3),
    Sketcher.Constraint("Vertical", 6, 2, 10, 2),
    Sketcher.Constraint("Vertical", 1, 2, 15, 2),
    Sketcher.Constraint("Equal", 2, 5),
    Sketcher.Constraint("Equal", 16, 1),
    Sketcher.Constraint("Equal", 6, 11),
    Sketcher.Constraint("Radius", 3, 4.5),
    Sketcher.Constraint("DistanceX", 0, 1, 0, 2, 12.0),
    Sketcher.Constraint("DistanceX", 0, 2, -1, 1, 145.0),
    Sketcher.Constraint("DistanceY", -1, 1, 0, 2, 84.0),
    Sketcher.Constraint("DistanceX", 5, 2, -1, 1, 27.0),
    Sketcher.Constraint("DistanceY", -1, 1, 10, 2, 26.0),
])
sketch6.setExpression("Constraints[50]", "Params.sketch6_radius")
sketch6.setExpression("Constraints[51]", "Params.sketch6_width")
pad4 = doc.addObject("PartDesign::Pad", "Pad003")
body.addObject(pad4)
pad4.Profile = sketch6
pad4.setExpression("Length", "Params.pad4_length")

# Sketch on XY plane
sketch7 = doc.addObject("Sketcher::SketchObject", "Sketch006")
body.addObject(sketch7)
sketch7.AttachmentSupport = (doc.XY_Plane, [""])
sketch7.MapMode = "FlatFace"
sketch7.AttachmentOffset = App.Placement(App.Vector(0, 0, 2.2), App.Rotation())
sketch7.addGeometry([
    Part.LineSegment(App.Vector(-159, 84, 0), App.Vector(-157, 84, 0)),  # 0
    Part.LineSegment(App.Vector(-157, 84, 0), App.Vector(-157, 91.5, 0)),  # 1
    Part.ArcOfCircle(Part.Circle(App.Vector(-152.5, 91.5, 0), App.Vector(0, 0, 1), 4.5), math.radians(90), math.radians(180)),  # 2
    Part.LineSegment(App.Vector(-152.5, 96, 0), App.Vector(-145, 96, 0)),  # 3
    Part.LineSegment(App.Vector(-145, 96, 0), App.Vector(-145, 98, 0)),  # 4
    Part.LineSegment(App.Vector(-145, 98, 0), App.Vector(-152.5, 98, 0)),  # 5
    Part.ArcOfCircle(Part.Circle(App.Vector(-152.5, 91.5, 0), App.Vector(0, 0, 1), 6.5), math.radians(90), math.radians(180)),  # 6
    Part.LineSegment(App.Vector(-159, 91.5, 0), App.Vector(-159, 84, 0)),  # 7
    Part.LineSegment(App.Vector(-157, 18.5, 0), App.Vector(-157, 26, 0)),  # 8
    Part.LineSegment(App.Vector(-157, 26, 0), App.Vector(-159, 26, 0)),  # 9
    Part.LineSegment(App.Vector(-159, 26, 0), App.Vector(-159, 18.5, 0)),  # 10
    Part.ArcOfCircle(Part.Circle(App.Vector(-152.5, 18.5, 0), App.Vector(0, 0, 1), 6.5), math.radians(180), math.radians(270)),  # 11
    Part.LineSegment(App.Vector(-152.5, 12, 0), App.Vector(-145, 12, 0)),  # 12
    Part.LineSegment(App.Vector(-145, 12, 0), App.Vector(-145, 14, 0)),  # 13
    Part.LineSegment(App.Vector(-145, 14, 0), App.Vector(-152.5, 14, 0)),  # 14
    Part.ArcOfCircle(Part.Circle(App.Vector(-152.5, 18.5, 0), App.Vector(0, 0, 1), 4.5), math.radians(180), math.radians(270)),  # 15
    Part.LineSegment(App.Vector(-13, 26, 0), App.Vector(-15, 26, 0)),  # 16
    Part.LineSegment(App.Vector(-15, 26, 0), App.Vector(-15, 18.5, 0)),  # 17
    Part.ArcOfCircle(Part.Circle(App.Vector(-19.5, 18.5, 0), App.Vector(0, 0, 1), 4.5), math.radians(-90), math.radians(0)),  # 18
    Part.LineSegment(App.Vector(-19.5, 14, 0), App.Vector(-27, 14, 0)),  # 19
    Part.LineSegment(App.Vector(-27, 14, 0), App.Vector(-27, 12, 0)),  # 20
    Part.LineSegment(App.Vector(-27, 12, 0), App.Vector(-19.5, 12, 0)),  # 21
    Part.ArcOfCircle(Part.Circle(App.Vector(-19.5, 18.5, 0), App.Vector(0, 0, 1), 6.5), math.radians(-90), math.radians(0)),  # 22
    Part.LineSegment(App.Vector(-13, 18.5, 0), App.Vector(-13, 26, 0)),  # 23
    Part.LineSegment(App.Vector(-27, 98, 0), App.Vector(-27, 96, 0)),  # 24
    Part.LineSegment(App.Vector(-27, 96, 0), App.Vector(-19.5, 96, 0)),  # 25
    Part.ArcOfCircle(Part.Circle(App.Vector(-19.5, 91.5, 0), App.Vector(0, 0, 1), 4.5), math.radians(0), math.radians(90)),  # 26
    Part.LineSegment(App.Vector(-15, 91.5, 0), App.Vector(-15, 84, 0)),  # 27
    Part.LineSegment(App.Vector(-15, 84, 0), App.Vector(-13, 84, 0)),  # 28
    Part.LineSegment(App.Vector(-13, 84, 0), App.Vector(-13, 91.5, 0)),  # 29
    Part.ArcOfCircle(Part.Circle(App.Vector(-19.5, 91.5, 0), App.Vector(0, 0, 1), 6.5), math.radians(0), math.radians(90)),  # 30
    Part.LineSegment(App.Vector(-19.5, 98, 0), App.Vector(-27, 98, 0)),  # 31
], False)
sketch7.addConstraint([
    Sketcher.Constraint("Coincident", 0, 2, 1, 1),
    Sketcher.Constraint("Tangent", 1, 2, 2, 2),
    Sketcher.Constraint("Tangent", 2, 1, 3, 1),
    Sketcher.Constraint("Coincident", 3, 2, 4, 1),
    Sketcher.Constraint("Coincident", 4, 2, 5, 1),
    Sketcher.Constraint("Tangent", 5, 2, 6, 1),
    Sketcher.Constraint("Tangent", 6, 2, 7, 1),
    Sketcher.Constraint("Coincident", 7, 2, 0, 1),
    Sketcher.Constraint("Coincident", 8, 2, 9, 1),
    Sketcher.Constraint("Coincident", 9, 2, 10, 1),
    Sketcher.Constraint("Tangent", 10, 2, 11, 1),
    Sketcher.Constraint("Tangent", 11, 2, 12, 1),
    Sketcher.Constraint("Coincident", 12, 2, 13, 1),
    Sketcher.Constraint("Coincident", 13, 2, 14, 1),
    Sketcher.Constraint("Tangent", 14, 2, 15, 2),
    Sketcher.Constraint("Tangent", 15, 1, 8, 1),
    Sketcher.Constraint("Coincident", 16, 2, 17, 1),
    Sketcher.Constraint("Tangent", 17, 2, 18, 2),
    Sketcher.Constraint("Tangent", 18, 1, 19, 1),
    Sketcher.Constraint("Coincident", 19, 2, 20, 1),
    Sketcher.Constraint("Coincident", 20, 2, 21, 1),
    Sketcher.Constraint("Tangent", 21, 2, 22, 1),
    Sketcher.Constraint("Tangent", 22, 2, 23, 1),
    Sketcher.Constraint("Coincident", 23, 2, 16, 1),
    Sketcher.Constraint("Coincident", 24, 2, 25, 1),
    Sketcher.Constraint("Tangent", 25, 2, 26, 2),
    Sketcher.Constraint("Tangent", 26, 1, 27, 1),
    Sketcher.Constraint("Coincident", 27, 2, 28, 1),
    Sketcher.Constraint("Coincident", 28, 2, 29, 1),
    Sketcher.Constraint("Tangent", 29, 2, 30, 1),
    Sketcher.Constraint("Tangent", 30, 2, 31, 1),
    Sketcher.Constraint("Coincident", 31, 2, 24, 1),
    Sketcher.Constraint("Horizontal", 0),
    Sketcher.Constraint("Vertical", 1),
    Sketcher.Constraint("Horizontal", 3),
    Sketcher.Constraint("Vertical", 4),
    Sketcher.Constraint("Horizontal", 5),
    Sketcher.Constraint("Vertical", 7),
    Sketcher.Constraint("Vertical", 8),
    Sketcher.Constraint("Horizontal", 9),
    Sketcher.Constraint("Vertical", 10),
    Sketcher.Constraint("Horizontal", 12),
    Sketcher.Constraint("Vertical", 13),
    Sketcher.Constraint("Horizontal", 14),
    Sketcher.Constraint("Horizontal", 16),
    Sketcher.Constraint("Vertical", 17),
    Sketcher.Constraint("Horizontal", 19),
    Sketcher.Constraint("Vertical", 20),
    Sketcher.Constraint("Horizontal", 21),
    Sketcher.Constraint("Vertical", 23),
    Sketcher.Constraint("Vertical", 24),
    Sketcher.Constraint("Horizontal", 25),
    Sketcher.Constraint("Vertical", 27),
    Sketcher.Constraint("Horizontal", 28),
    Sketcher.Constraint("Vertical", 29),
    Sketcher.Constraint("Horizontal", 31),
    Sketcher.Constraint("Coincident", 6, 3, 2, 3),
    Sketcher.Constraint("Coincident", 15, 3, 11, 3),
    Sketcher.Constraint("Coincident", 22, 3, 18, 3),
    Sketcher.Constraint("Coincident", 30, 3, 26, 3),
    Sketcher.Constraint("Equal", 6, 11),
    Sketcher.Constraint("Equal", 2, 15),
    Sketcher.Constraint("Equal", 15, 18),
    Sketcher.Constraint("Equal", 11, 22),
    Sketcher.Constraint("Equal", 18, 26),
    Sketcher.Constraint("Equal", 22, 30),
    Sketcher.Constraint("Horizontal", 15, 3, 18, 3),
    Sketcher.Constraint("Horizontal", 6, 3, 26, 3),
    Sketcher.Constraint("Horizontal", 9, 2, 16, 2),
    Sketcher.Constraint("Horizontal", 7, 2, 27, 2),
    Sketcher.Constraint("Vertical", 6, 3, 11, 3),
    Sketcher.Constraint("Vertical", 22, 3, 26, 3),
    Sketcher.Constraint("Vertical", 4, 2, 12, 2),
    Sketcher.Constraint("Vertical", 20, 2, 24, 2),
    Sketcher.Constraint("Equal", 14, 19),
    Sketcher.Constraint("Equal", 31, 1),
    Sketcher.Constraint("Equal", 7, 8),
    Sketcher.Constraint("Radius", 2, 4.5),
    Sketcher.Constraint("Radius", 6, 6.5),
    Sketcher.Constraint("DistanceX", 3, 1, 3, 2, 7.5),
    Sketcher.Constraint("DistanceX", 0, 2, -1, 1, 157.0),
    Sketcher.Constraint("DistanceY", -1, 1, 0, 2, 84.0),
    Sketcher.Constraint("DistanceY", -1, 1, 8, 2, 26.0),
    Sketcher.Constraint("DistanceX", 16, 2, -1, 1, 15.0),
])
sketch7.setExpression("Constraints[77]", "Params.sketch7_radius")
sketch7.setExpression("Constraints[78]", "Params.sketch7_radius2")
sketch7.setExpression("Constraints[79]", "Params.sketch7_width")
pad5 = doc.addObject("PartDesign::Pad", "Pad004")
body.addObject(pad5)
pad5.Profile = sketch7
pad5.setExpression("Length", "Params.pad5_length")

# Sketch on XY plane
sketch8 = doc.addObject("Sketcher::SketchObject", "Sketch007")
body.addObject(sketch8)
sketch8.AttachmentSupport = (doc.XY_Plane, [""])
sketch8.MapMode = "FlatFace"
sketch8.AttachmentOffset = App.Placement(App.Vector(0, 0, 17.2), App.Rotation())
sketch8.addGeometry([
    Part.LineSegment(App.Vector(-200, 63.660254, 0), App.Vector(-200, 46.339746, 0)),  # 0
    Part.LineSegment(App.Vector(-200, 46.339746, 0), App.Vector(-188.1, 39.469278, 0)),  # 1
    Part.LineSegment(App.Vector(-188.1, 39.469278, 0), App.Vector(-188.1, 40.393038, 0)),  # 2
    Part.LineSegment(App.Vector(-188.1, 40.393038, 0), App.Vector(-199.2, 46.801626, 0)),  # 3
    Part.LineSegment(App.Vector(-199.2, 46.801626, 0), App.Vector(-199.2, 63.198374, 0)),  # 4
    Part.LineSegment(App.Vector(-199.2, 63.198374, 0), App.Vector(-188.1, 69.606962, 0)),  # 5
    Part.LineSegment(App.Vector(-188.1, 69.606962, 0), App.Vector(-188.1, 70.530722, 0)),  # 6
    Part.LineSegment(App.Vector(-188.1, 70.530722, 0), App.Vector(-200, 63.660254, 0)),  # 7
    Part.LineSegment(App.Vector(-181.9, 40.393038, 0), App.Vector(-181.9, 39.469278, 0)),  # 8
    Part.LineSegment(App.Vector(-181.9, 39.469278, 0), App.Vector(-170, 46.339746, 0)),  # 9
    Part.LineSegment(App.Vector(-170, 46.339746, 0), App.Vector(-170, 63.660254, 0)),  # 10
    Part.LineSegment(App.Vector(-170, 63.660254, 0), App.Vector(-181.9, 70.530722, 0)),  # 11
    Part.LineSegment(App.Vector(-181.9, 70.530722, 0), App.Vector(-181.9, 69.606962, 0)),  # 12
    Part.LineSegment(App.Vector(-181.9, 69.606962, 0), App.Vector(-170.8, 63.198374, 0)),  # 13
    Part.LineSegment(App.Vector(-170.8, 63.198374, 0), App.Vector(-170.8, 46.801626, 0)),  # 14
    Part.LineSegment(App.Vector(-170.8, 46.801626, 0), App.Vector(-181.9, 40.393038, 0)),  # 15
], False)
sketch8.addConstraint([
    Sketcher.Constraint("Coincident", 0, 2, 1, 1),
    Sketcher.Constraint("Coincident", 1, 2, 2, 1),
    Sketcher.Constraint("Coincident", 2, 2, 3, 1),
    Sketcher.Constraint("Coincident", 3, 2, 4, 1),
    Sketcher.Constraint("Coincident", 4, 2, 5, 1),
    Sketcher.Constraint("Coincident", 5, 2, 6, 1),
    Sketcher.Constraint("Coincident", 6, 2, 7, 1),
    Sketcher.Constraint("Coincident", 7, 2, 0, 1),
    Sketcher.Constraint("Coincident", 8, 2, 9, 1),
    Sketcher.Constraint("Coincident", 9, 2, 10, 1),
    Sketcher.Constraint("Coincident", 10, 2, 11, 1),
    Sketcher.Constraint("Coincident", 11, 2, 12, 1),
    Sketcher.Constraint("Coincident", 12, 2, 13, 1),
    Sketcher.Constraint("Coincident", 13, 2, 14, 1),
    Sketcher.Constraint("Coincident", 14, 2, 15, 1),
    Sketcher.Constraint("Coincident", 15, 2, 8, 1),
    Sketcher.Constraint("Vertical", 0),
    Sketcher.Constraint("Vertical", 2),
    Sketcher.Constraint("Vertical", 4),
    Sketcher.Constraint("Vertical", 6),
    Sketcher.Constraint("Vertical", 8),
    Sketcher.Constraint("Vertical", 10),
    Sketcher.Constraint("Vertical", 12),
    Sketcher.Constraint("Vertical", 14),
    Sketcher.Constraint("Parallel", 1, 3),
    Sketcher.Constraint("Parallel", 5, 7),
    Sketcher.Constraint("Parallel", 7, 9),
    Sketcher.Constraint("Parallel", 3, 11),
    Sketcher.Constraint("Parallel", 11, 13),
    Sketcher.Constraint("Parallel", 9, 15),
    Sketcher.Constraint("Horizontal", 1, 2, 8, 2),
    Sketcher.Constraint("Horizontal", 0, 2, 9, 2),
    Sketcher.Constraint("Horizontal", 7, 2, 10, 2),
    Sketcher.Constraint("Horizontal", 6, 2, 11, 2),
    Sketcher.Constraint("Horizontal", 5, 2, 12, 2),
    Sketcher.Constraint("Horizontal", 4, 2, 13, 2),
    Sketcher.Constraint("Horizontal", 3, 2, 14, 2),
    Sketcher.Constraint("Horizontal", 2, 2, 15, 2),
    Sketcher.Constraint("Vertical", 2, 2, 5, 2),
    Sketcher.Constraint("Equal", 2, 6),
    Sketcher.Constraint("Angle", 1, Q("-30 deg")),
    Sketcher.Constraint("DistanceX", 0, 2, -1, 1, 200.0),
    Sketcher.Constraint("DistanceX", 9, 2, -1, 1, 170.0),
    Sketcher.Constraint("DistanceX", 1, 2, -1, 1, 188.1),
    Sketcher.Constraint("DistanceX", 3, 2, -1, 1, 199.2),
    Sketcher.Constraint("DistanceY", 0, 2, 0, 1, 17.320508),
    Sketcher.Constraint("DistanceY", 2, 1, 2, 2, 0.92376),
    Sketcher.Constraint("DistanceY", -1, 1, 2, 2, 40.393038),
])
pad6 = doc.addObject("PartDesign::Pad", "Pad005")
body.addObject(pad6)
pad6.Profile = sketch8
pad6.setExpression("Length", "Params.pad6_length")

# Sketch on YZ plane
sketch9 = doc.addObject("Sketcher::SketchObject", "Sketch008")
body.addObject(sketch9)
sketch9.AttachmentSupport = (doc.YZ_Plane, [""])
sketch9.MapMode = "FlatFace"
sketch9.AttachmentOffset = App.Placement(App.Vector(0, 0, -170), App.Rotation())
sketch9.addGeometry([
    Part.LineSegment(App.Vector(54.004645, 17.2, 0), App.Vector(55.995355, 17.2, 0)),
    Part.ArcOfCircle(Part.Circle(App.Vector(55, 17.103729, 0), App.Vector(0, 0, 1), 1), math.radians(5.524481), math.radians(174.475519)),
], False)
sketch9.addConstraint([
    Sketcher.Constraint("Coincident", 0, 1, 1, 2),
    Sketcher.Constraint("Coincident", 1, 1, 0, 2),
    Sketcher.Constraint("Horizontal", 0),
    Sketcher.Constraint("Radius", 1, 1.0),
    Sketcher.Constraint("DistanceX", -1, 1, 1, 3, 55.0),
    Sketcher.Constraint("DistanceY", -1, 1, 0, 1, 17.2),
    Sketcher.Constraint("DistanceX", 0, 1, 0, 2, 1.99071),
])
sketch9.setExpression("Constraints[3]", "Params.sketch9_radius")
pocket3 = doc.addObject("PartDesign::Pocket", "Pocket002")
body.addObject(pocket3)
pocket3.Profile = sketch9
pocket3.setExpression("Length", "Params.pocket3_length")

doc.recompute()
